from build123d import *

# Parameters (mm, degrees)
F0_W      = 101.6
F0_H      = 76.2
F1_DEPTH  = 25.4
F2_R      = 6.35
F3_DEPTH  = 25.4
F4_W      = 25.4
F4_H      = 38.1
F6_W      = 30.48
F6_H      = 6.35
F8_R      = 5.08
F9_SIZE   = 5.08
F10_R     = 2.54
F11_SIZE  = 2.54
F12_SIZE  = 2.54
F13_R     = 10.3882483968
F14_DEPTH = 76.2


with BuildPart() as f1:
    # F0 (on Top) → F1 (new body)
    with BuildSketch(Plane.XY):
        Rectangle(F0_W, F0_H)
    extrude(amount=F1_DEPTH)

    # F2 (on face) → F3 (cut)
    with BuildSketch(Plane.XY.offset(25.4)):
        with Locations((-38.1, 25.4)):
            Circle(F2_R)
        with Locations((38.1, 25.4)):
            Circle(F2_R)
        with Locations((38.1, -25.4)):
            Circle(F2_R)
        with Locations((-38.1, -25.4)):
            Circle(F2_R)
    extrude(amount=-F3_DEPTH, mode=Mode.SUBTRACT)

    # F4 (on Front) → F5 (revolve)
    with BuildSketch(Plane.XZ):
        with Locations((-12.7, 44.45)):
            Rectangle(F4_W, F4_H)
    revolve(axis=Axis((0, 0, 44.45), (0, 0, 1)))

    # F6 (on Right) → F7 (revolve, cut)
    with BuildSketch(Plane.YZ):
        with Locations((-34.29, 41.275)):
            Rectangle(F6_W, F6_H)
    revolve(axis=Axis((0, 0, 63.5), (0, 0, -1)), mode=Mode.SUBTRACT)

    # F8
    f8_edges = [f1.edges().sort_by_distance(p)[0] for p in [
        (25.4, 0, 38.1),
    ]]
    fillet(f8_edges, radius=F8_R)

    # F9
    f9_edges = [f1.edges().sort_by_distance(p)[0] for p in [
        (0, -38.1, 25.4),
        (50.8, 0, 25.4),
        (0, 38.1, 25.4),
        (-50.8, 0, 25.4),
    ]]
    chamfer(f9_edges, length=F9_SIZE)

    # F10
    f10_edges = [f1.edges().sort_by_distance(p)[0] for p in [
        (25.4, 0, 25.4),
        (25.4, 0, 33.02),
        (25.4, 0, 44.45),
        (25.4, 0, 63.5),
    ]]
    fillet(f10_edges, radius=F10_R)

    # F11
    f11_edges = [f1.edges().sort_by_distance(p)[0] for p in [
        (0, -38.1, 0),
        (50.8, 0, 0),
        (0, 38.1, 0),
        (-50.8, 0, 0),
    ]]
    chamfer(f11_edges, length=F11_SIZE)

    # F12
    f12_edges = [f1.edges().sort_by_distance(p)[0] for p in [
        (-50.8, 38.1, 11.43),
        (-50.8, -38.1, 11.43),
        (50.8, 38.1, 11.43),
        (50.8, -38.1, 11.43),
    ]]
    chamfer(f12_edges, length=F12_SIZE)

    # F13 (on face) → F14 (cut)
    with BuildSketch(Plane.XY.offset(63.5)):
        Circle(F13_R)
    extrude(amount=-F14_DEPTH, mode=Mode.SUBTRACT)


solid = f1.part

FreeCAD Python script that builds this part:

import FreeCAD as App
import Part
import Sketcher

V = App.Vector
Q = App.Units.Quantity


def edges_at(feature, points):
    """Names of the edges that pass closest to the given points."""
    edges = feature.Shape.Edges
    near = lambda p: min(range(len(edges)), key=lambda i: edges[i].distToShape(Part.Vertex(*p))[0])
    return sorted({f"Edge{near(p) + 1}" for p in points})


def add_polygon(sketch, points):
    """Adds a closed chain of lines whose ends are joined by coincident constraints."""
    first, n = sketch.GeometryCount, len(points)
    for a, b in zip(points, points[1:] + points[:1]):
        sketch.addGeometry(Part.LineSegment(App.Vector(*a, 0), App.Vector(*b, 0)), False)
    for i in range(n):
        sketch.addConstraint(Sketcher.Constraint("Coincident", first + i, 2, first + (i + 1) % n, 1))

doc = App.newDocument("Part")
body = doc.addObject("PartDesign::Body", "Body")

# Sketch on XY plane
sketch1 = body.newObject("Sketcher::SketchObject", "Sketch")
sketch1.AttachmentSupport = (doc.getObject("XY_Plane"), [""])
sketch1.MapMode = "FlatFace"
add_polygon(sketch1, [(-51, 38), (-51, -38), (51, -38), (51, 38)])  # lines 0-3
sketch1.addConstraint(Sketcher.Constraint("Vertical", 0))
sketch1.addConstraint(Sketcher.Constraint("Horizontal", 1))
sketch1.addConstraint(Sketcher.Constraint("Vertical", 2))
sketch1.addConstraint(Sketcher.Constraint("Horizontal", 3))
sketch1.addConstraint(Sketcher.Constraint("Symmetric", 0, 2, 2, 2, -1, 1))
sketch1.addConstraint(Sketcher.Constraint("DistanceX", 1, 1, 1, 2, Q("4 in")))
sketch1.addConstraint(Sketcher.Constraint("DistanceY", 0, 2, 0, 1, Q("3 in")))
pad1 = body.newObject("PartDesign::Pad", "Pad")
pad1.Profile = sketch1
pad1.Length = Q("1 in")

# Sketch on XY plane
sketch2 = body.newObject("Sketcher::SketchObject", "Sketch001")
sketch2.AttachmentSupport = (doc.getObject("XY_Plane"), [""])
sketch2.MapMode = "FlatFace"
sketch2.AttachmentOffset = App.Placement(V(0, 0, 1 * 25.4), App.Rotation())
sketch2.addGeometry(Part.Circle(V(-38, 25, 0), V(0, 0, 1), 6), False)
sketch2.addGeometry(Part.Circle(V(38, 25, 0), V(0, 0, 1), 6), False)
sketch2.addGeometry(Part.Circle(V(38, -25, 0), V(0, 0, 1), 6), False)
sketch2.addGeometry(Part.Circle(V(-38, -25, 0), V(0, 0, 1), 6), False)
sketch2.addConstraint(Sketcher.Constraint("Equal", 0, 1))
sketch2.addConstraint(Sketcher.Constraint("Equal", 1, 2))
sketch2.addConstraint(Sketcher.Constraint("Equal", 2, 3))
sketch2.addConstraint(Sketcher.Constraint("Symmetric", 0, 3, 2, 3, -1, 1))
sketch2.addConstraint(Sketcher.Constraint("Symmetric", 1, 3, 3, 3, -1, 1))
sketch2.addConstraint(Sketcher.Constraint("Symmetric", 0, 3, 1, 3, -2))
sketch2.addConstraint(Sketcher.Constraint("Diameter", 0, Q("0.5 in")))
sketch2.addConstraint(Sketcher.Constraint("DistanceY", -1, 1, 0, 3, Q("1 in")))
sketch2.addConstraint(Sketcher.Constraint("DistanceX", 0, 3, 1, 3, Q("3 in")))
pocket1 = body.newObject("PartDesign::Pocket", "Pocket")
pocket1.Profile = sketch2
pocket1.Length = Q("1 in")

# Sketch on XZ plane
sketch3 = body.newObject("Sketcher::SketchObject", "Sketch002")
sketch3.AttachmentSupport = (doc.getObject("XZ_Plane"), [""])
sketch3.MapMode = "FlatFace"
add_polygon(sketch3, [(-25, 64), (-25, 25), (0, 25), (0, 64)])  # lines 0-3
sketch3.addConstraint(Sketcher.Constraint("Vertical", 0))
sketch3.addConstraint(Sketcher.Constraint("Horizontal", 1))
sketch3.addConstraint(Sketcher.Constraint("Vertical", 2))
sketch3.addConstraint(Sketcher.Constraint("Horizontal", 3))
sketch3.addConstraint(Sketcher.Constraint("PointOnObject", 1, 2, -2))
sketch3.addConstraint(Sketcher.Constraint("DistanceX", 1, 1, 1, 2, Q("1 in")))
sketch3.addConstraint(Sketcher.Constraint("DistanceY", 0, 2, 0, 1, Q("1.5 in")))
sketch3.addConstraint(Sketcher.Constraint("DistanceY", -1, 1, 0, 2, Q("1 in")))
revolution = body.newObject("PartDesign::Revolution", "Revolution")
revolution.Profile = sketch3
revolution.ReferenceAxis = (sketch3, ["V_Axis"])
revolution.Angle = 360

# Sketch on YZ plane
sketch4 = body.newObject("Sketcher::SketchObject", "Sketch003")
sketch4.AttachmentSupport = (doc.getObject("YZ_Plane"), [""])
sketch4.MapMode = "FlatFace"
add_polygon(sketch4, [(-50, 44), (-50, 38), (-19, 38), (-19, 44)])  # lines 0-3
sketch4.addConstraint(Sketcher.Constraint("Vertical", 0))
sketch4.addConstraint(Sketcher.Constraint("Horizontal", 1))
sketch4.addConstraint(Sketcher.Constraint("Vertical", 2))
sketch4.addConstraint(Sketcher.Constraint("Horizontal", 3))
sketch4.addConstraint(Sketcher.Constraint("DistanceX", 1, 1, 1, 2, Q("1.2 in")))
sketch4.addConstraint(Sketcher.Constraint("DistanceY", 0, 2, 0, 1, Q("0.25 in")))
sketch4.addConstraint(Sketcher.Constraint("DistanceY", -1, 1, 0, 2, Q("1.5 in")))
sketch4.addConstraint(Sketcher.Constraint("DistanceX", 0, 2, -1, 1, Q("1.95 in")))
groove = body.newObject("PartDesign::Groove", "Groove")
groove.Profile = sketch4
groove.ReferenceAxis = (sketch4, ["V_Axis"])
groove.Angle = 360
doc.recompute()

fillet = body.newObject("PartDesign::Fillet", "Fillet")
fillet.Base = (groove, edges_at(groove, [(25.4, 0, 38.1)]))
fillet.Radius = Q("0.2 in")
doc.recompute()

chamfer = body.newObject("PartDesign::Chamfer", "Chamfer")
chamfer.Base = (fillet, edges_at(fillet, [
    (0, -38.1, 25.4),
    (50.8, 0, 25.4),
    (0, 38.1, 25.4),
    (-50.8, 0, 25.4),
]))
chamfer.Size = Q("0.2 in")
doc.recompute()

fillet2 = body.newObject("PartDesign::Fillet", "Fillet001")
fillet2.Base = (chamfer, edges_at(chamfer, [
    (25.4, 0, 25.4),
    (25.4, 0, 33.02),
    (25.4, 0, 44.45),
    (25.4, 0, 63.5),
]))
fillet2.Radius = Q("0.1 in")
doc.recompute()

chamfer2 = body.newObject("PartDesign::Chamfer", "Chamfer001")
chamfer2.Base = (fillet2, edges_at(fillet2, [
    (0, -38.1, 0),
    (50.8, 0, 0),
    (0, 38.1, 0),
    (-50.8, 0, 0),
]))
chamfer2.Size = Q("0.1 in")
doc.recompute()

chamfer3 = body.newObject("PartDesign::Chamfer", "Chamfer002")
chamfer3.Base = (chamfer2, edges_at(chamfer2, [
    (-50.8, 38.1, 11.43),
    (-50.8, -38.1, 11.43),
    (50.8, 38.1, 11.43),
    (50.8, -38.1, 11.43),
]))
chamfer3.Size = Q("0.1 in")

# Sketch on XY plane
sketch5 = body.newObject("Sketcher::SketchObject", "Sketch004")
sketch5.AttachmentSupport = (doc.getObject("XY_Plane"), [""])
sketch5.MapMode = "FlatFace"
sketch5.AttachmentOffset = App.Placement(V(0, 0, 2.5 * 25.4), App.Rotation())
sketch5.addGeometry(Part.Circle(V(0, 0, 0), V(0, 0, 1), 10), False)
sketch5.addConstraint(Sketcher.Constraint("Coincident", 0, 3, -1, 1))
sketch5.addConstraint(Sketcher.Constraint("Diameter", 0, Q("20.776497 mm")))
pocket2 = body.newObject("PartDesign::Pocket", "Pocket001")
pocket2.Profile = sketch5
pocket2.Length = Q("3 in")

doc.recompute()
